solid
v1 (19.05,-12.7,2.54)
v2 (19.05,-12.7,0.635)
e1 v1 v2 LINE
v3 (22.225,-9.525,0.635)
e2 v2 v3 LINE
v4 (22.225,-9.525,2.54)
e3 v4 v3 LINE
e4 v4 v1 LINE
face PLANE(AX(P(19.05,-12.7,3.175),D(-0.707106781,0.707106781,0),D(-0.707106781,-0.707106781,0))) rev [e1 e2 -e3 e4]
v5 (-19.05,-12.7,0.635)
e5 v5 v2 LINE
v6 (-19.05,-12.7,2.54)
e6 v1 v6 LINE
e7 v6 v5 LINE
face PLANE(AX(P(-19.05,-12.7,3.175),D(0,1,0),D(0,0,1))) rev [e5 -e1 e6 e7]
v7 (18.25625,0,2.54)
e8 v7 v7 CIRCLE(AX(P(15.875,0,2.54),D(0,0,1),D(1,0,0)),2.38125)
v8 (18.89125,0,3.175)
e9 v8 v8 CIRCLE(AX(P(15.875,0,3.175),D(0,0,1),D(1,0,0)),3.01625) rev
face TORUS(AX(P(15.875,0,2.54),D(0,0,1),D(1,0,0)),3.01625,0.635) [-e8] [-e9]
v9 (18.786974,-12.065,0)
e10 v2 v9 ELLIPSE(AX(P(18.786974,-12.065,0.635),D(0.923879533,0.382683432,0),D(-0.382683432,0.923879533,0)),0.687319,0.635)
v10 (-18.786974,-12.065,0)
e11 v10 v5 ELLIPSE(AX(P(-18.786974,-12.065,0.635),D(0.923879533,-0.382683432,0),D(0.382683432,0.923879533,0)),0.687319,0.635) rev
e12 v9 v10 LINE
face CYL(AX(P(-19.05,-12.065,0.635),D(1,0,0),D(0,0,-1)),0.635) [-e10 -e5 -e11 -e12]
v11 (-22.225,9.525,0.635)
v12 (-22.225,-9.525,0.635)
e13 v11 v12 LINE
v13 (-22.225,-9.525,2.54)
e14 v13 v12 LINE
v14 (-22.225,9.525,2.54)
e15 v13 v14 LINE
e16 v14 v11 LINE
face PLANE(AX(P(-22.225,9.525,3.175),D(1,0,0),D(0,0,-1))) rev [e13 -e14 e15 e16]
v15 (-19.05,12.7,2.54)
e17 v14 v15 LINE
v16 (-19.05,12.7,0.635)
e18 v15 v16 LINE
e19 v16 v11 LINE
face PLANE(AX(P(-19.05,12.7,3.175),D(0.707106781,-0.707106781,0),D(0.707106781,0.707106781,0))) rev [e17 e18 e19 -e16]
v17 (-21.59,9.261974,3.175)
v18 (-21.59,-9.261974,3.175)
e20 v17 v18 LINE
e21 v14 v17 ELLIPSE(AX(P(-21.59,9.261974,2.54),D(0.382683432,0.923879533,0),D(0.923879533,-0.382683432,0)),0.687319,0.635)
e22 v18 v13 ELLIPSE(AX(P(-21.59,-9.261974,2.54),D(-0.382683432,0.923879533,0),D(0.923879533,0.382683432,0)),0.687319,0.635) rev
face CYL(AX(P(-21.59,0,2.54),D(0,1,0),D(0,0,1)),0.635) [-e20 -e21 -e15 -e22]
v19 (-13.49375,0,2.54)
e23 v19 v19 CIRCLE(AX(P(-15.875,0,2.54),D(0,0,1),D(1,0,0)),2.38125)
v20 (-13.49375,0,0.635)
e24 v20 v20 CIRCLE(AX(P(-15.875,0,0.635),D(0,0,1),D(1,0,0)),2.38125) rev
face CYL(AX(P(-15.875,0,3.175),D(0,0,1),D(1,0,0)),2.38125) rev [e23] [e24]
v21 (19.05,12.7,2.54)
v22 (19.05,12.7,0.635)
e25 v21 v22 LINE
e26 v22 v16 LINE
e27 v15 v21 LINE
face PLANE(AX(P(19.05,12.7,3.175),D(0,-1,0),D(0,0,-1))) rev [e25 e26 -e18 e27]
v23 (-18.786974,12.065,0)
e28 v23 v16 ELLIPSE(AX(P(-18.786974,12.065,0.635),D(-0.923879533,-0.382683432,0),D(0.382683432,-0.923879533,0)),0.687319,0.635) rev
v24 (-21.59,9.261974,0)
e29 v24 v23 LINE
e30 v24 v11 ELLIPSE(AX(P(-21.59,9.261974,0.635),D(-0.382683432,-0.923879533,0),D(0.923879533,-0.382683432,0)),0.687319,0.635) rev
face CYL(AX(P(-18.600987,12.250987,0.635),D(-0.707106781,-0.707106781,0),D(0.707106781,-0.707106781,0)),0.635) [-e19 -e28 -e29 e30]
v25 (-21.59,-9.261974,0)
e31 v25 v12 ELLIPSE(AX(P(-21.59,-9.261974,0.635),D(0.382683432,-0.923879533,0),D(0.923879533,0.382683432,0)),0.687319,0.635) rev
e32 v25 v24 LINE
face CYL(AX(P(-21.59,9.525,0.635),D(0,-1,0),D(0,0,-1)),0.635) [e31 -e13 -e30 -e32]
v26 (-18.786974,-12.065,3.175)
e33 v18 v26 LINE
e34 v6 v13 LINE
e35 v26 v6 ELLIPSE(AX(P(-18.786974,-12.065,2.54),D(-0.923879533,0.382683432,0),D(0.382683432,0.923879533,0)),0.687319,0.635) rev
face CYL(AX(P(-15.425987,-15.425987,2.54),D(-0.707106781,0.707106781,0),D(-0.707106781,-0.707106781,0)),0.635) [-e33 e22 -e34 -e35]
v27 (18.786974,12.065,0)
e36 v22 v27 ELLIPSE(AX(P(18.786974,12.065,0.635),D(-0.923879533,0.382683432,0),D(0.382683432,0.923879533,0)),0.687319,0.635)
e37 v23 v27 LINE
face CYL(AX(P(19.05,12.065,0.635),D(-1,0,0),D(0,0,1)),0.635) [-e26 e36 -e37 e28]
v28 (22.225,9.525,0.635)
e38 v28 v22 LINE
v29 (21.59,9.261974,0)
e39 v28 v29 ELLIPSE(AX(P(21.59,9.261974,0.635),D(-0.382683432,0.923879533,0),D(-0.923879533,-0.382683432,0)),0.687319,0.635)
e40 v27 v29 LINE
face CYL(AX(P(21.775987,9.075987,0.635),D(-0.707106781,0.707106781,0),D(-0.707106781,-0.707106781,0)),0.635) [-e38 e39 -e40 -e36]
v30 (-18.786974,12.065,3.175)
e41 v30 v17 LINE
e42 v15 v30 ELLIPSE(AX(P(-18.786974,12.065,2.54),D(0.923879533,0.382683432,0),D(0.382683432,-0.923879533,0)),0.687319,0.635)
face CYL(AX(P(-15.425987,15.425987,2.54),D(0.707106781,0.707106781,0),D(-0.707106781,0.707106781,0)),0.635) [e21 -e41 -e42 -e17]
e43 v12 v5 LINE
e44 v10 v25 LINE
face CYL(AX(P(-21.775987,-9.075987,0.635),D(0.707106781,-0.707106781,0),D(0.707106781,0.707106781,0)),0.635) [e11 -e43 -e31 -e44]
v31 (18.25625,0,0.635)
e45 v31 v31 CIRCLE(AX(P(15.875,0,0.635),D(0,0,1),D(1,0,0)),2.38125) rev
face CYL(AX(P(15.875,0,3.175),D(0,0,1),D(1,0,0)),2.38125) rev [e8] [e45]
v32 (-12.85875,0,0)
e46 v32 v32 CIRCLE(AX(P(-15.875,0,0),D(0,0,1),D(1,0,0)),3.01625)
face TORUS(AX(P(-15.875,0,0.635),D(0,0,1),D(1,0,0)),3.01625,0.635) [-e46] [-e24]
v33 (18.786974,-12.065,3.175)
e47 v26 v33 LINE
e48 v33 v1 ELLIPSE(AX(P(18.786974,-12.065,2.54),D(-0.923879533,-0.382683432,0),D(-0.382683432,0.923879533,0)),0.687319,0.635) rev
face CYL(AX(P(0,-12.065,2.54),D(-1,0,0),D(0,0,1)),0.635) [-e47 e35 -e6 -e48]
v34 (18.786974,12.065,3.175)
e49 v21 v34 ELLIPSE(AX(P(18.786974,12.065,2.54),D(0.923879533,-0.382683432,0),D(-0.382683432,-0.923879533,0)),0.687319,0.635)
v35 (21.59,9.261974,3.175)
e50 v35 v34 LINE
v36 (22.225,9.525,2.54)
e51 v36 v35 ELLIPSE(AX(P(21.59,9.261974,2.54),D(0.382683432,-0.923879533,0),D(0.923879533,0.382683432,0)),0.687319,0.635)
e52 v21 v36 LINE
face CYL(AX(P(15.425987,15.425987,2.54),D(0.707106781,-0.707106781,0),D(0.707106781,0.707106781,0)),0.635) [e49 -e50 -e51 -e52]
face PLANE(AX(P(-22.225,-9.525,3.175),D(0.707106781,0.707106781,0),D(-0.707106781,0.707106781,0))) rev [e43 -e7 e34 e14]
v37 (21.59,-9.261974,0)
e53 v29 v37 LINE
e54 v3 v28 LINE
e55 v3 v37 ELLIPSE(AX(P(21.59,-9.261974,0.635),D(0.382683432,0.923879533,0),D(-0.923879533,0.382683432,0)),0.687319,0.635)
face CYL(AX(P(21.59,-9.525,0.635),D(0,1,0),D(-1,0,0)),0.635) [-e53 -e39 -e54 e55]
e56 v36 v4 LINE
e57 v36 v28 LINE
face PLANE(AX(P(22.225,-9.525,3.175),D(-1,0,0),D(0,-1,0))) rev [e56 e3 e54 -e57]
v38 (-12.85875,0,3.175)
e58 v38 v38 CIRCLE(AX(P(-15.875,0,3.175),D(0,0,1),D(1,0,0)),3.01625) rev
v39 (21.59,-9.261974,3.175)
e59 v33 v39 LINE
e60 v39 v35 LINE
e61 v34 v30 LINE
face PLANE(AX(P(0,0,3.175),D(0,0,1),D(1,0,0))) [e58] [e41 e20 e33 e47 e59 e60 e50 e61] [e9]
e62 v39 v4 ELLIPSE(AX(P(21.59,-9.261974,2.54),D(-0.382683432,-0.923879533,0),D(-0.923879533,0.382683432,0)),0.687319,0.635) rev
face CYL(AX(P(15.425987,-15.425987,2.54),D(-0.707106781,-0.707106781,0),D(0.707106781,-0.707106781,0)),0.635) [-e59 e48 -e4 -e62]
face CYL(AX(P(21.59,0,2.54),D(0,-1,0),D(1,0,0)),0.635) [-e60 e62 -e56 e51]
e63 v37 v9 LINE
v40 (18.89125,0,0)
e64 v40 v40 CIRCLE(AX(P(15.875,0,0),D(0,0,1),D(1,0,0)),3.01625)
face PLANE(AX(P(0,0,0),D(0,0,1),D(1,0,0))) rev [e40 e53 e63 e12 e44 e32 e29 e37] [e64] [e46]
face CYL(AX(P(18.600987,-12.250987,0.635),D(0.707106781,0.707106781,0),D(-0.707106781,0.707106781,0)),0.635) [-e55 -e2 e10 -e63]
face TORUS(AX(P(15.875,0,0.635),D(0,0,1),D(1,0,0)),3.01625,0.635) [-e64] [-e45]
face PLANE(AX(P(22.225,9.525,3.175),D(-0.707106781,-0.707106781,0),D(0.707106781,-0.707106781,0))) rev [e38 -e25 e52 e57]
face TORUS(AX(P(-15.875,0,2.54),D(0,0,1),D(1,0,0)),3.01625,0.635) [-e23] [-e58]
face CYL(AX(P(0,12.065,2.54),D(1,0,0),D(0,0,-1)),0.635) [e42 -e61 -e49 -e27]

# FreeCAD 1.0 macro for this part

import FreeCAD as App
import Part
import Sketcher
Q = App.Units.Quantity


def edges_at(feature, points):
    """Names of the edges that pass closest to the given points."""
    edges = feature.Shape.Edges
    near = lambda p: min(range(len(edges)), key=lambda i: edges[i].distToShape(Part.Vertex(*p))[0])
    return sorted({f"Edge{near(p) + 1}" for p in points})

doc = App.newDocument("Part")
params = doc.addObject("Spreadsheet::Sheet", "Params")
for row, (alias, value) in enumerate([
    ("sketch1_width", "1.5 in"),
    ("sketch1_height", "0.75 in"),
    ("pad1_length", "0.125 in"),
    ("sketch2_diameter", "0.1875 in"),
    ("hole_diameter", "0.1875 in"),
    ("fillet_radius", "0.025 in"),
], start=1):
    params.set(f"A{row}", alias)
    params.set(f"B{row}", "=" + value)
    params.setAlias(f"B{row}", alias)

body = doc.addObject("PartDesign::Body", "Body")

sketch1 = body.newObject("Sketcher::SketchObject", "Sketch")
sketch1.AttachmentSupport = (doc.getObject("XY_Plane"), [""])
sketch1.MapMode = "FlatFace"
sketch1.addGeometry(Part.LineSegment(App.Vector(19.05, 12.7, 0), App.Vector(-19.05, 12.7, 0)), False)
sketch1.addGeometry(Part.LineSegment(App.Vector(-19.05, 12.7, 0), App.Vector(-22.225, 9.525, 0)), False)
sketch1.addGeometry(Part.LineSegment(App.Vector(-22.225, 9.525, 0), App.Vector(-22.225, -9.525, 0)), False)
sketch1.addGeometry(Part.LineSegment(App.Vector(-22.225, -9.525, 0), App.Vector(-19.05, -12.7, 0)), False)
sketch1.addGeometry(Part.LineSegment(App.Vector(-19.05, -12.7, 0), App.Vector(19.05, -12.7, 0)), False)
sketch1.addGeometry(Part.LineSegment(App.Vector(19.05, -12.7, 0), App.Vector(22.225, -9.525, 0)), False)
sketch1.addGeometry(Part.LineSegment(App.Vector(22.225, -9.525, 0), App.Vector(22.225, 9.525, 0)), False)
sketch1.addGeometry(Part.LineSegment(App.Vector(22.225, 9.525, 0), App.Vector(19.05, 12.7, 0)), False)
sketch1.addConstraint(Sketcher.Constraint("Coincident", 0, 2, 1, 1))
sketch1.addConstraint(Sketcher.Constraint("Coincident", 1, 2, 2, 1))
sketch1.addConstraint(Sketcher.Constraint("Coincident", 2, 2, 3, 1))
sketch1.addConstraint(Sketcher.Constraint("Coincident", 3, 2, 4, 1))
sketch1.addConstraint(Sketcher.Constraint("Coincident", 4, 2, 5, 1))
sketch1.addConstraint(Sketcher.Constraint("Coincident", 5, 2, 6, 1))
sketch1.addConstraint(Sketcher.Constraint("Coincident", 6, 2, 7, 1))
sketch1.addConstraint(Sketcher.Constraint("Coincident", 7, 2, 0, 1))
sketch1.addConstraint(Sketcher.Constraint("Horizontal", 0))
sketch1.addConstraint(Sketcher.Constraint("Vertical", 2))
sketch1.addConstraint(Sketcher.Constraint("Horizontal", 4))
sketch1.addConstraint(Sketcher.Constraint("Vertical", 6))
sketch1.addConstraint(Sketcher.Constraint("Symmetric", 0, 2, 4, 2, -1, 1))
sketch1.addConstraint(Sketcher.Constraint("Symmetric", 1, 2, 5, 2, -1, 1))
sketch1.addConstraint(Sketcher.Constraint("Perpendicular", 1, 3))
sketch1.addConstraint(Sketcher.Constraint("Perpendicular", 5, 7))
sketch1.addConstraint(Sketcher.Constraint("Horizontal", 2, 2, 5, 2))
sketch1.addConstraint(Sketcher.Constraint("Horizontal", 1, 2, 6, 2))
sketch1.addConstraint(Sketcher.Constraint("Vertical", 0, 2, 3, 2))
sketch1.addConstraint(Sketcher.Constraint("DistanceX", 0, 2, 0, 1, Q("1.5 in")))
sketch1.addConstraint(Sketcher.Constraint("DistanceY", 3, 2, 0, 2, Q("1 in")))
sketch1.addConstraint(Sketcher.Constraint("DistanceY", 2, 2, 2, 1, Q("0.75 in")))
sketch1.setExpression("Constraints[19]", "Params.sketch1_width")
sketch1.setExpression("Constraints[21]", "Params.sketch1_height")
pad1 = body.newObject("PartDesign::Pad", "Pad")
pad1.Profile = sketch1
pad1.setExpression("Length", "Params.pad1_length")

sketch2 = body.newObject("Sketcher::SketchObject", "Sketch001")
sketch2.AttachmentSupport = (doc.getObject("XY_Plane"), [""])
sketch2.MapMode = "FlatFace"
sketch2.AttachmentOffset = App.Placement(App.Vector(0, 0, 0.125 * 25.4), App.Rotation())
sketch2.addGeometry(Part.Circle(App.Vector(15.875, 0, 0), App.Vector(0, 0, 1), 2.38125), False)
sketch2.addGeometry(Part.Circle(App.Vector(-15.875, 0, 0), App.Vector(0, 0, 1), 2.38125), False)
sketch2.addConstraint(Sketcher.Constraint("Equal", 0, 1))
sketch2.addConstraint(Sketcher.Constraint("Symmetric", 0, 3, 1, 3, -1, 1))
sketch2.addConstraint(Sketcher.Constraint("PointOnObject", 0, 3, -1))
sketch2.addConstraint(Sketcher.Constraint("Diameter", 0, Q("0.1875 in")))
sketch2.addConstraint(Sketcher.Constraint("DistanceX", 1, 3, 0, 3, Q("1.25 in")))
sketch2.setExpression("Constraints[3]", "Params.sketch2_diameter")
doc.recompute()
hole = body.newObject("PartDesign::Hole", "Hole")
hole.Profile = sketch2
hole.ThreadType = "None"
hole.setExpression("Diameter", "Params.hole_diameter")
hole.DepthType = "ThroughAll"
doc.recompute()

fillet = body.newObject("PartDesign::Fillet", "Fillet")
fillet.Base = (hole, edges_at(hole, [
    (-20.637, 11.113, 3.175),
    (0, 12.7, 0),
    (20.637, 11.113, 0),
    (-22.225, 0, 3.175),
    (-20.637, -11.113, 3.175),
    (0, -12.7, 3.175),
    (20.637, -11.113, 3.175),
    (22.225, 0, 3.175),
    (-13.494, 0, 3.175),
    (-13.494, 0, 0),
    (18.256, 0, 3.175),
    (18.256, 0, 0),
    (20.637, 11.113, 3.175),
    (0, 12.7, 3.175),
    (22.225, 0, 0),
    (20.637, -11.113, 0),
    (0, -12.7, 0),
    (-20.637, -11.113, 0),
    (-22.225, 0, 0),
    (-20.637, 11.113, 0),
]))
fillet.setExpression("Radius", "Params.fillet_radius")

doc.recompute()
